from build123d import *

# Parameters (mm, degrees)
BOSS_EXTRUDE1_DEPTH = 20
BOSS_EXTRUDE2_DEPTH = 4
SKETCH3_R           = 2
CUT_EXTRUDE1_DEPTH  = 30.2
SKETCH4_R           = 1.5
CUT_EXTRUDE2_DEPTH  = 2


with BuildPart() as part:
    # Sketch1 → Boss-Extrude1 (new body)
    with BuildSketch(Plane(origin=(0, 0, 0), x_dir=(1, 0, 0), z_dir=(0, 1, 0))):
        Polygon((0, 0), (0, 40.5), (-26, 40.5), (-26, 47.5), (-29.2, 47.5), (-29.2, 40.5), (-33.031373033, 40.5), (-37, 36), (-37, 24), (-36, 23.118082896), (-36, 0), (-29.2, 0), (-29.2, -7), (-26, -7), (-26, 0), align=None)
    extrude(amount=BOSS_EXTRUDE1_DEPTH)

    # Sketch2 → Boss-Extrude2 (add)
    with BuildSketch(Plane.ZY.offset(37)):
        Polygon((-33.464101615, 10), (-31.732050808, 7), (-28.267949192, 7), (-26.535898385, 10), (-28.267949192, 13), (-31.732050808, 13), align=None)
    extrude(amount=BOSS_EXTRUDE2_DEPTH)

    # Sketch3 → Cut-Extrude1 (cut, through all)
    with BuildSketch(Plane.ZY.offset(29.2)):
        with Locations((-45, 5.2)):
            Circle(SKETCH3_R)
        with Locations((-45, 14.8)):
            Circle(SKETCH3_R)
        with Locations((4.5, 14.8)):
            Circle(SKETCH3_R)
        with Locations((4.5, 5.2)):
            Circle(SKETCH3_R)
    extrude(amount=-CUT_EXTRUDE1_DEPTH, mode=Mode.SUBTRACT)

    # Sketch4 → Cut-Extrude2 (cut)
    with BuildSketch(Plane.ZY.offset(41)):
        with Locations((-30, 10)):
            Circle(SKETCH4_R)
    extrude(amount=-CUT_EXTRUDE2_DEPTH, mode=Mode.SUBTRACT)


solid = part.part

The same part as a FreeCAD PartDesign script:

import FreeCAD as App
import Part
import Sketcher
Q = App.Units.Quantity


def add_polygon(sketch, points):
    """Adds a closed chain of lines whose ends are joined by coincident constraints."""
    first, n = sketch.GeometryCount, len(points)
    for a, b in zip(points, points[1:] + points[:1]):
        sketch.addGeometry(Part.LineSegment(App.Vector(*a, 0), App.Vector(*b, 0)), False)
    for i in range(n):
        sketch.addConstraint(Sketcher.Constraint("Coincident", first + i, 2, first + (i + 1) % n, 1))

doc = App.newDocument("Part")
body = doc.addObject("PartDesign::Body", "Body")

sketch1 = doc.addObject("Sketcher::SketchObject", "Sketch")
body.addObject(sketch1)
sketch1.AttachmentSupport = (doc.XZ_Plane, [""])
sketch1.MapMode = "FlatFace"
add_polygon(sketch1, [(0, 0), (0, -40.5), (-26, -40.5), (-26, -47.5), (-29.2, -47.5), (-29.2, -40.5), (-33, -40.5), (-37, -36), (-37, -24), (-36, -23.1), (-36, 0), (-29.2, 0), (-29.2, 7), (-26, 7), (-26, 0)])
sketch1.addConstraint([
    Sketcher.Constraint("Vertical", 0),
    Sketcher.Constraint("Horizontal", 1),
    Sketcher.Constraint("Vertical", 2),
    Sketcher.Constraint("Horizontal", 3),
    Sketcher.Constraint("Vertical", 4),
    Sketcher.Constraint("Horizontal", 5),
    Sketcher.Constraint("Vertical", 7),
    Sketcher.Constraint("Vertical", 9),
    Sketcher.Constraint("Horizontal", 10),
    Sketcher.Constraint("Vertical", 11),
    Sketcher.Constraint("Horizontal", 12),
    Sketcher.Constraint("Vertical", 13),
    Sketcher.Constraint("Horizontal", 14),
    Sketcher.Constraint("Coincident", 14, 2, -1, 1),
    Sketcher.Constraint("PointOnObject", 9, 2, -1),
    Sketcher.Constraint("Perpendicular", 6, 8),
    Sketcher.Constraint("Horizontal", 1, 2, 4, 2),
    Sketcher.Constraint("Vertical", 4, 2, 10, 2),
    Sketcher.Constraint("Vertical", 2, 2, 12, 2),
    Sketcher.Constraint("Equal", 4, 11),
    Sketcher.Constraint("DistanceX", 1, 2, 1, 1, Q("26 mm")),
    Sketcher.Constraint("DistanceY", 2, 2, 2, 1, Q("7 mm")),
    Sketcher.Constraint("DistanceY", 7, 1, 7, 2, Q("12 mm")),
    Sketcher.Constraint("Distance", 6, Q("6 mm")),
    Sketcher.Constraint("DistanceX", 3, 2, 3, 1, Q("3.2 mm")),
    Sketcher.Constraint("DistanceX", 10, 1, 10, 2, Q("6.8 mm")),
    Sketcher.Constraint("DistanceY", 0, 2, 0, 1, Q("40.5 mm")),
    Sketcher.Constraint("DistanceX", 6, 2, -1, 1, Q("37 mm")),
    Sketcher.Constraint("DistanceY", 6, 2, -1, 1, Q("36 mm")),
])
pad1 = doc.addObject("PartDesign::Pad", "Pad")
body.addObject(pad1)
pad1.Profile = sketch1
pad1.Length = 20
pad1.Reversed = True

sketch2 = doc.addObject("Sketcher::SketchObject", "Sketch001")
body.addObject(sketch2)
sketch2.AttachmentSupport = (doc.YZ_Plane, [""])
sketch2.MapMode = "FlatFace"
sketch2.AttachmentOffset = App.Placement(App.Vector(0, 0, -37), App.Rotation())
add_polygon(sketch2, [(10, -33.5), (7, -31.7), (7, -28.3), (10, -26.5), (13, -28.3), (13, -31.7)])
sketch2.addConstraint([
    Sketcher.Constraint("Vertical", 1),
    Sketcher.Constraint("Vertical", 4),
    Sketcher.Constraint("Parallel", 0, 3),
    Sketcher.Constraint("Parallel", 2, 5),
    Sketcher.Constraint("Horizontal", 1, 2, 3, 2),
    Sketcher.Constraint("Horizontal", 0, 2, 4, 2),
    Sketcher.Constraint("Vertical", 2, 2, 5, 2),
    Sketcher.Constraint("Angle", 0, Q("150 deg")),
    Sketcher.Constraint("DistanceX", -1, 1, 0, 2, Q("7 mm")),
    Sketcher.Constraint("DistanceX", -1, 1, 2, 2, Q("10 mm")),
    Sketcher.Constraint("DistanceY", 1, 1, 1, 2, Q("3.464102 mm")),
    Sketcher.Constraint("DistanceY", 2, 2, -1, 1, Q("26.535898 mm")),
])
pad2 = doc.addObject("PartDesign::Pad", "Pad001")
body.addObject(pad2)
pad2.Profile = sketch2
pad2.Length = 4
pad2.Reversed = True

sketch3 = doc.addObject("Sketcher::SketchObject", "Sketch002")
body.addObject(sketch3)
sketch3.AttachmentSupport = (doc.YZ_Plane, [""])
sketch3.MapMode = "FlatFace"
sketch3.AttachmentOffset = App.Placement(App.Vector(0, 0, -29.2), App.Rotation())
sketch3.addGeometry([
    Part.Circle(App.Vector(5.2, -45, 0), App.Vector(0, 0, 1), 2),
    Part.Circle(App.Vector(14.8, -45, 0), App.Vector(0, 0, 1), 2),
    Part.Circle(App.Vector(14.8, 4.5, 0), App.Vector(0, 0, 1), 2),
    Part.Circle(App.Vector(5.2, 4.5, 0), App.Vector(0, 0, 1), 2),
], False)
sketch3.addConstraint([
    Sketcher.Constraint("Equal", 0, 1),
    Sketcher.Constraint("Equal", 1, 2),
    Sketcher.Constraint("Equal", 2, 3),
    Sketcher.Constraint("Horizontal", 0, 3, 1, 3),
    Sketcher.Constraint("Horizontal", 2, 3, 3, 3),
    Sketcher.Constraint("Vertical", 1, 3, 2, 3),
    Sketcher.Constraint("Vertical", 0, 3, 3, 3),
    Sketcher.Constraint("Diameter", 0, Q("4 mm")),
    Sketcher.Constraint("DistanceY", 0, 3, -1, 1, Q("45 mm")),
    Sketcher.Constraint("DistanceX", -1, 1, 0, 3, Q("5.2 mm")),
    Sketcher.Constraint("DistanceX", -1, 1, 1, 3, Q("14.8 mm")),
    Sketcher.Constraint("DistanceY", -1, 1, 2, 3, Q("4.5 mm")),
])
pocket1 = doc.addObject("PartDesign::Pocket", "Pocket")
body.addObject(pocket1)
pocket1.Profile = sketch3
pocket1.Type = "ThroughAll"
pocket1.Reversed = True

sketch4 = doc.addObject("Sketcher::SketchObject", "Sketch003")
body.addObject(sketch4)
sketch4.AttachmentSupport = (doc.YZ_Plane, [""])
sketch4.MapMode = "FlatFace"
sketch4.AttachmentOffset = App.Placement(App.Vector(0, 0, -41), App.Rotation())
sketch4.addGeometry(Part.Circle(App.Vector(10, -30, 0), App.Vector(0, 0, 1), 1.5), False)
sketch4.addConstraint([
    Sketcher.Constraint("Diameter", 0, Q("3 mm")),
    Sketcher.Constraint("DistanceX", -1, 1, 0, 3, Q("10 mm")),
    Sketcher.Constraint("DistanceY", 0, 3, -1, 1, Q("30 mm")),
])
pocket2 = doc.addObject("PartDesign::Pocket", "Pocket001")
body.addObject(pocket2)
pocket2.Profile = sketch4
pocket2.Length = 2
pocket2.Reversed = True

doc.recompute()
